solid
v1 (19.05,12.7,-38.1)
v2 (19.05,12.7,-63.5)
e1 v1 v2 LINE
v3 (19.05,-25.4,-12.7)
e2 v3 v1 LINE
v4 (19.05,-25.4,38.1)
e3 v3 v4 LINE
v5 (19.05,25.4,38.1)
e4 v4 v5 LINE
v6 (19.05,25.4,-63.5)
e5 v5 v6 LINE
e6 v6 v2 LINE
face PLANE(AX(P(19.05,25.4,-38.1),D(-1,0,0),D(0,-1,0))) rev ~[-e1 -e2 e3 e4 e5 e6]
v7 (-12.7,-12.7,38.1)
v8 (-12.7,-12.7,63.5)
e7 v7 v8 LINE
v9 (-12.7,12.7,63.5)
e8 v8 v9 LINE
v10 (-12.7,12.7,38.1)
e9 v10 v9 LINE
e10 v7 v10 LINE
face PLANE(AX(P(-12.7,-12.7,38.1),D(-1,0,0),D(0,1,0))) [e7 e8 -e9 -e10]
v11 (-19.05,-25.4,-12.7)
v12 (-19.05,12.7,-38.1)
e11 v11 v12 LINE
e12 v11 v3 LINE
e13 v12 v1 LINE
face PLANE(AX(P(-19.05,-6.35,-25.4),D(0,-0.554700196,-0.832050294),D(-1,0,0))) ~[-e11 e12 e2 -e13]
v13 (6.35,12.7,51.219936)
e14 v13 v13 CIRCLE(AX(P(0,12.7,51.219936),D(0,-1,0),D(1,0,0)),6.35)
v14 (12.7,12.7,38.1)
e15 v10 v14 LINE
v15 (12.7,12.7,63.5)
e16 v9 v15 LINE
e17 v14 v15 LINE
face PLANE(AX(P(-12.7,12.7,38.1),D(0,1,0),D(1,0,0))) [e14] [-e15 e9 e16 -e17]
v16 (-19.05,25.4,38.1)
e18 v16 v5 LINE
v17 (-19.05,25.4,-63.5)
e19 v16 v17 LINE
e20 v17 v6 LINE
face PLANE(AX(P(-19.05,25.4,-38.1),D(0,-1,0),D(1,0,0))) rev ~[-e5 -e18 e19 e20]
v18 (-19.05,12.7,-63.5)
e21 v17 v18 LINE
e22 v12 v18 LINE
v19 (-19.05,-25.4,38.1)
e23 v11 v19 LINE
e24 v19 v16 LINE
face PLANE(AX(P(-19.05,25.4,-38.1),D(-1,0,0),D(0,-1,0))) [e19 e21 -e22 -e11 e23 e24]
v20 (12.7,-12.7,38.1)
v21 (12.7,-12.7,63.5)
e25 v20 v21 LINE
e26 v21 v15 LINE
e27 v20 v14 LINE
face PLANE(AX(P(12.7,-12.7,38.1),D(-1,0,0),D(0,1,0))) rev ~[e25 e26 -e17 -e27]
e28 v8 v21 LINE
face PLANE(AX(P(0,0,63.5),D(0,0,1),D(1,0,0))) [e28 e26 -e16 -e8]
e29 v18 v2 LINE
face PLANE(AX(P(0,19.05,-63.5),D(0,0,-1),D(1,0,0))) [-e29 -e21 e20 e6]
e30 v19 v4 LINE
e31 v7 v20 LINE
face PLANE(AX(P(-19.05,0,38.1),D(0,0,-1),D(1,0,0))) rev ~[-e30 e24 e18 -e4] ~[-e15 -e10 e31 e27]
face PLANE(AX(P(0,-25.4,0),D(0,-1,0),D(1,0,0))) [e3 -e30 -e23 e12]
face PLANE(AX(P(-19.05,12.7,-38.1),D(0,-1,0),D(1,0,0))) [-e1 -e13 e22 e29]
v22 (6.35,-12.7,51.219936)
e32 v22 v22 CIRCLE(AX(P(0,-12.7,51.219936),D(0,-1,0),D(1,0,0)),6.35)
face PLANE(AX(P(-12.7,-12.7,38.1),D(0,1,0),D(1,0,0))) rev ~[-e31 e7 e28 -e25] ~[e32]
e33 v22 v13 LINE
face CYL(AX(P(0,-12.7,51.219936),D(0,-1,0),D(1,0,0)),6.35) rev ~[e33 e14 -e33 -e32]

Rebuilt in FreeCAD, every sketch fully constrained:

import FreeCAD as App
import Part
import Sketcher
from FreeCAD import Vector
Q = App.Units.Quantity


def edges_at(feature, points):
    """Names of the edges that pass closest to the given points."""
    edges = feature.Shape.Edges
    near = lambda p: min(range(len(edges)), key=lambda i: edges[i].distToShape(Part.Vertex(*p))[0])
    return sorted({f"Edge{near(p) + 1}" for p in points})

doc = App.newDocument("Part")
body = doc.addObject("PartDesign::Body", "Body")

# Sketch on XZ plane
sketch1 = body.newObject("Sketcher::SketchObject", "Sketch")
sketch1.AttachmentSupport = (doc.getObject("XZ_Plane"), [""])
sketch1.MapMode = "FlatFace"
sketch1.addGeometry(Part.LineSegment(Vector(-19, 38, 0), Vector(-19, -38, 0)), False)
sketch1.addGeometry(Part.LineSegment(Vector(-19, -38, 0), Vector(19, -38, 0)), False)
sketch1.addGeometry(Part.LineSegment(Vector(19, -38, 0), Vector(19, 38, 0)), False)
sketch1.addGeometry(Part.LineSegment(Vector(19, 38, 0), Vector(-19, 38, 0)), False)
sketch1.addConstraint(Sketcher.Constraint("Coincident", 0, 2, 1, 1))
sketch1.addConstraint(Sketcher.Constraint("Coincident", 1, 2, 2, 1))
sketch1.addConstraint(Sketcher.Constraint("Coincident", 2, 2, 3, 1))
sketch1.addConstraint(Sketcher.Constraint("Coincident", 3, 2, 0, 1))
sketch1.addConstraint(Sketcher.Constraint("Vertical", 0))
sketch1.addConstraint(Sketcher.Constraint("Horizontal", 1))
sketch1.addConstraint(Sketcher.Constraint("Vertical", 2))
sketch1.addConstraint(Sketcher.Constraint("Horizontal", 3))
sketch1.addConstraint(Sketcher.Constraint("Symmetric", 0, 2, 2, 2, -1, 1))
sketch1.addConstraint(Sketcher.Constraint("DistanceY", 0, 2, 0, 1, Q("3 in")))
sketch1.addConstraint(Sketcher.Constraint("DistanceX", 1, 1, 1, 2, Q("1.5 in")))
pad1 = body.newObject("PartDesign::Pad", "Pad")
pad1.Profile = sketch1
pad1.Length = Q("2 in")
pad1.Midplane = True
doc.recompute()

chamfer = body.newObject("PartDesign::Chamfer", "Chamfer")
chamfer.Base = (pad1, edges_at(pad1, [(0, -25.4, -38.1)]))
chamfer.ChamferType = "Two distances"
chamfer.Size = Q("1 in")
chamfer.Size2 = Q("1.5 in")
chamfer.FlipDirection = True

# Sketch on XY plane
sketch2 = body.newObject("Sketcher::SketchObject", "Sketch001")
sketch2.AttachmentSupport = (doc.getObject("XY_Plane"), [""])
sketch2.MapMode = "FlatFace"
sketch2.AttachmentOffset = App.Placement(Vector(0, 0, 1.5 * 25.4), App.Rotation())
sketch2.addGeometry(Part.LineSegment(Vector(-13, 13, 0), Vector(-13, -13, 0)), False)
sketch2.addGeometry(Part.LineSegment(Vector(-13, -13, 0), Vector(13, -13, 0)), False)
sketch2.addGeometry(Part.LineSegment(Vector(13, -13, 0), Vector(13, 13, 0)), False)
sketch2.addGeometry(Part.LineSegment(Vector(13, 13, 0), Vector(-13, 13, 0)), False)
sketch2.addConstraint(Sketcher.Constraint("Coincident", 0, 2, 1, 1))
sketch2.addConstraint(Sketcher.Constraint("Coincident", 1, 2, 2, 1))
sketch2.addConstraint(Sketcher.Constraint("Coincident", 2, 2, 3, 1))
sketch2.addConstraint(Sketcher.Constraint("Coincident", 3, 2, 0, 1))
sketch2.addConstraint(Sketcher.Constraint("Vertical", 0))
sketch2.addConstraint(Sketcher.Constraint("Horizontal", 1))
sketch2.addConstraint(Sketcher.Constraint("Vertical", 2))
sketch2.addConstraint(Sketcher.Constraint("Horizontal", 3))
sketch2.addConstraint(Sketcher.Constraint("Symmetric", 0, 2, 2, 2, -1, 1))
sketch2.addConstraint(Sketcher.Constraint("Equal", 3, 0))
sketch2.addConstraint(Sketcher.Constraint("DistanceX", 1, 1, 1, 2, Q("1 in")))
pad2 = body.newObject("PartDesign::Pad", "Pad001")
pad2.Profile = sketch2
pad2.Length = Q("1 in")

# Sketch on XZ plane
sketch3 = body.newObject("Sketcher::SketchObject", "Sketch002")
sketch3.AttachmentSupport = (doc.getObject("XZ_Plane"), [""])
sketch3.MapMode = "FlatFace"
sketch3.AttachmentOffset = App.Placement(Vector(0, 0, 0.5 * 25.4), App.Rotation())
sketch3.addGeometry(Part.Circle(Vector(0, 51, 0), Vector(0, 0, 1), 6), False)
sketch3.addConstraint(Sketcher.Constraint("PointOnObject", 0, 3, -2))
sketch3.addConstraint(Sketcher.Constraint("Diameter", 0, Q("0.5 in")))
sketch3.addConstraint(Sketcher.Constraint("DistanceY", -1, 1, 0, 3, Q("51.219936 mm")))
pocket1 = body.newObject("PartDesign::Pocket", "Pocket")
pocket1.Profile = sketch3
pocket1.Length = Q("1 in")

# Sketch on XY plane
sketch4 = body.newObject("Sketcher::SketchObject", "Sketch003")
sketch4.AttachmentSupport = (doc.getObject("XY_Plane"), [""])
sketch4.MapMode = "FlatFace"
sketch4.AttachmentOffset = App.Placement(Vector(0, 0, -1.5 * 25.4), App.Rotation())
sketch4.addGeometry(Part.LineSegment(Vector(-19, 13, 0), Vector(-19, 25, 0)), False)
sketch4.addGeometry(Part.LineSegment(Vector(-19, 25, 0), Vector(19, 25, 0)), False)
sketch4.addGeometry(Part.LineSegment(Vector(19, 25, 0), Vector(19, 13, 0)), False)
sketch4.addGeometry(Part.LineSegment(Vector(19, 13, 0), Vector(-19, 13, 0)), False)
sketch4.addConstraint(Sketcher.Constraint("Coincident", 0, 2, 1, 1))
sketch4.addConstraint(Sketcher.Constraint("Coincident", 1, 2, 2, 1))
sketch4.addConstraint(Sketcher.Constraint("Coincident", 2, 2, 3, 1))
sketch4.addConstraint(Sketcher.Constraint("Coincident", 3, 2, 0, 1))
sketch4.addConstraint(Sketcher.Constraint("Vertical", 0))
sketch4.addConstraint(Sketcher.Constraint("Horizontal", 1))
sketch4.addConstraint(Sketcher.Constraint("Vertical", 2))
sketch4.addConstraint(Sketcher.Constraint("Horizontal", 3))
sketch4.addConstraint(Sketcher.Constraint("DistanceX", 1, 1, 1, 2, Q("1.5 in")))
sketch4.addConstraint(Sketcher.Constraint("DistanceY", 0, 1, 0, 2, Q("0.5 in")))
sketch4.addConstraint(Sketcher.Constraint("DistanceY", -1, 1, 0, 2, Q("1 in")))
sketch4.addConstraint(Sketcher.Constraint("DistanceX", 0, 2, -1, 1, Q("0.75 in")))
pad3 = body.newObject("PartDesign::Pad", "Pad002")
pad3.Profile = sketch4
pad3.Length = Q("1 in")
pad3.Reversed = True

doc.recompute()
